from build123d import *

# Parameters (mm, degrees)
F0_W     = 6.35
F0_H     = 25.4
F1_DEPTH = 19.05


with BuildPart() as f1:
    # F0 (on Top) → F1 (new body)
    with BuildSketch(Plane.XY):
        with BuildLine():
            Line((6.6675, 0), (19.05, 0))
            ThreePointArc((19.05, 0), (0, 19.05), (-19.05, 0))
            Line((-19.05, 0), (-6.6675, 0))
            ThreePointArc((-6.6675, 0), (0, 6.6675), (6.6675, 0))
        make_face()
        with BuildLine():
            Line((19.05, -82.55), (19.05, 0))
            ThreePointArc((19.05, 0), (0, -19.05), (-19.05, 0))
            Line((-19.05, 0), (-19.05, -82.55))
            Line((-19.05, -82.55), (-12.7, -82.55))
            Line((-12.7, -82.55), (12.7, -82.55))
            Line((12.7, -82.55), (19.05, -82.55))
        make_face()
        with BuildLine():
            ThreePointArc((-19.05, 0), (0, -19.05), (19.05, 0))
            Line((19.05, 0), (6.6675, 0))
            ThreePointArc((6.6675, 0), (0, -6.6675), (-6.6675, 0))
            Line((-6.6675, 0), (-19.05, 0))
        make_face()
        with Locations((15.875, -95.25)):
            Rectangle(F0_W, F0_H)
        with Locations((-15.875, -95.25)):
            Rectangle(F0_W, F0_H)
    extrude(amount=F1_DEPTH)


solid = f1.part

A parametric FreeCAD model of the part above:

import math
import FreeCAD as App
import Part
import Sketcher
from FreeCAD import Vector
Q = App.Units.Quantity

doc = App.newDocument("Part")
body = doc.addObject("PartDesign::Body", "Body")

sketch1 = body.newObject("Sketcher::SketchObject", "Sketch")
sketch1.AttachmentSupport = (doc.getObject("XY_Plane"), [""])
sketch1.MapMode = "FlatFace"
sketch1.addGeometry(Part.ArcOfCircle(Part.Circle(Vector(0, 0, 0), Vector(0, 0, 1), 19), math.radians(0), math.radians(180)), False)
sketch1.addGeometry(Part.LineSegment(Vector(-19, 0, 0), Vector(-19, -108, 0)), False)
sketch1.addGeometry(Part.LineSegment(Vector(-19, -108, 0), Vector(-13, -108, 0)), False)
sketch1.addGeometry(Part.LineSegment(Vector(-13, -108, 0), Vector(-13, -83, 0)), False)
sketch1.addGeometry(Part.LineSegment(Vector(-13, -83, 0), Vector(13, -83, 0)), False)
sketch1.addGeometry(Part.LineSegment(Vector(13, -83, 0), Vector(13, -108, 0)), False)
sketch1.addGeometry(Part.LineSegment(Vector(13, -108, 0), Vector(19, -108, 0)), False)
sketch1.addGeometry(Part.LineSegment(Vector(19, -108, 0), Vector(19, 0, 0)), False)
sketch1.addGeometry(Part.Circle(Vector(0, 0, 0), Vector(0, 0, 1), 7), False)
sketch1.addConstraint(Sketcher.Constraint("Tangent", 0, 2, 1, 1))
sketch1.addConstraint(Sketcher.Constraint("Coincident", 1, 2, 2, 1))
sketch1.addConstraint(Sketcher.Constraint("Coincident", 2, 2, 3, 1))
sketch1.addConstraint(Sketcher.Constraint("Coincident", 3, 2, 4, 1))
sketch1.addConstraint(Sketcher.Constraint("Coincident", 4, 2, 5, 1))
sketch1.addConstraint(Sketcher.Constraint("Coincident", 5, 2, 6, 1))
sketch1.addConstraint(Sketcher.Constraint("Coincident", 6, 2, 7, 1))
sketch1.addConstraint(Sketcher.Constraint("Tangent", 7, 2, 0, 1))
sketch1.addConstraint(Sketcher.Constraint("Vertical", 1))
sketch1.addConstraint(Sketcher.Constraint("Horizontal", 2))
sketch1.addConstraint(Sketcher.Constraint("Vertical", 3))
sketch1.addConstraint(Sketcher.Constraint("Horizontal", 4))
sketch1.addConstraint(Sketcher.Constraint("Vertical", 5))
sketch1.addConstraint(Sketcher.Constraint("Horizontal", 6))
sketch1.addConstraint(Sketcher.Constraint("Vertical", 7))
sketch1.addConstraint(Sketcher.Constraint("Coincident", 0, 3, -1, 1))
sketch1.addConstraint(Sketcher.Constraint("Coincident", 8, 3, -1, 1))
sketch1.addConstraint(Sketcher.Constraint("Symmetric", 2, 2, 5, 2, -2))
sketch1.addConstraint(Sketcher.Constraint("Equal", 4, 3))
sketch1.addConstraint(Sketcher.Constraint("DistanceX", 4, 1, 4, 2, Q("1 in")))
sketch1.addConstraint(Sketcher.Constraint("Radius", 0, Q("0.75 in")))
sketch1.addConstraint(Sketcher.Constraint("Diameter", 8, Q("0.525 in")))
sketch1.addConstraint(Sketcher.Constraint("DistanceY", 1, 2, 1, 1, Q("4.25 in")))
pad1 = body.newObject("PartDesign::Pad", "Pad")
pad1.Profile = sketch1
pad1.Length = Q("0.75 in")

doc.recompute()
